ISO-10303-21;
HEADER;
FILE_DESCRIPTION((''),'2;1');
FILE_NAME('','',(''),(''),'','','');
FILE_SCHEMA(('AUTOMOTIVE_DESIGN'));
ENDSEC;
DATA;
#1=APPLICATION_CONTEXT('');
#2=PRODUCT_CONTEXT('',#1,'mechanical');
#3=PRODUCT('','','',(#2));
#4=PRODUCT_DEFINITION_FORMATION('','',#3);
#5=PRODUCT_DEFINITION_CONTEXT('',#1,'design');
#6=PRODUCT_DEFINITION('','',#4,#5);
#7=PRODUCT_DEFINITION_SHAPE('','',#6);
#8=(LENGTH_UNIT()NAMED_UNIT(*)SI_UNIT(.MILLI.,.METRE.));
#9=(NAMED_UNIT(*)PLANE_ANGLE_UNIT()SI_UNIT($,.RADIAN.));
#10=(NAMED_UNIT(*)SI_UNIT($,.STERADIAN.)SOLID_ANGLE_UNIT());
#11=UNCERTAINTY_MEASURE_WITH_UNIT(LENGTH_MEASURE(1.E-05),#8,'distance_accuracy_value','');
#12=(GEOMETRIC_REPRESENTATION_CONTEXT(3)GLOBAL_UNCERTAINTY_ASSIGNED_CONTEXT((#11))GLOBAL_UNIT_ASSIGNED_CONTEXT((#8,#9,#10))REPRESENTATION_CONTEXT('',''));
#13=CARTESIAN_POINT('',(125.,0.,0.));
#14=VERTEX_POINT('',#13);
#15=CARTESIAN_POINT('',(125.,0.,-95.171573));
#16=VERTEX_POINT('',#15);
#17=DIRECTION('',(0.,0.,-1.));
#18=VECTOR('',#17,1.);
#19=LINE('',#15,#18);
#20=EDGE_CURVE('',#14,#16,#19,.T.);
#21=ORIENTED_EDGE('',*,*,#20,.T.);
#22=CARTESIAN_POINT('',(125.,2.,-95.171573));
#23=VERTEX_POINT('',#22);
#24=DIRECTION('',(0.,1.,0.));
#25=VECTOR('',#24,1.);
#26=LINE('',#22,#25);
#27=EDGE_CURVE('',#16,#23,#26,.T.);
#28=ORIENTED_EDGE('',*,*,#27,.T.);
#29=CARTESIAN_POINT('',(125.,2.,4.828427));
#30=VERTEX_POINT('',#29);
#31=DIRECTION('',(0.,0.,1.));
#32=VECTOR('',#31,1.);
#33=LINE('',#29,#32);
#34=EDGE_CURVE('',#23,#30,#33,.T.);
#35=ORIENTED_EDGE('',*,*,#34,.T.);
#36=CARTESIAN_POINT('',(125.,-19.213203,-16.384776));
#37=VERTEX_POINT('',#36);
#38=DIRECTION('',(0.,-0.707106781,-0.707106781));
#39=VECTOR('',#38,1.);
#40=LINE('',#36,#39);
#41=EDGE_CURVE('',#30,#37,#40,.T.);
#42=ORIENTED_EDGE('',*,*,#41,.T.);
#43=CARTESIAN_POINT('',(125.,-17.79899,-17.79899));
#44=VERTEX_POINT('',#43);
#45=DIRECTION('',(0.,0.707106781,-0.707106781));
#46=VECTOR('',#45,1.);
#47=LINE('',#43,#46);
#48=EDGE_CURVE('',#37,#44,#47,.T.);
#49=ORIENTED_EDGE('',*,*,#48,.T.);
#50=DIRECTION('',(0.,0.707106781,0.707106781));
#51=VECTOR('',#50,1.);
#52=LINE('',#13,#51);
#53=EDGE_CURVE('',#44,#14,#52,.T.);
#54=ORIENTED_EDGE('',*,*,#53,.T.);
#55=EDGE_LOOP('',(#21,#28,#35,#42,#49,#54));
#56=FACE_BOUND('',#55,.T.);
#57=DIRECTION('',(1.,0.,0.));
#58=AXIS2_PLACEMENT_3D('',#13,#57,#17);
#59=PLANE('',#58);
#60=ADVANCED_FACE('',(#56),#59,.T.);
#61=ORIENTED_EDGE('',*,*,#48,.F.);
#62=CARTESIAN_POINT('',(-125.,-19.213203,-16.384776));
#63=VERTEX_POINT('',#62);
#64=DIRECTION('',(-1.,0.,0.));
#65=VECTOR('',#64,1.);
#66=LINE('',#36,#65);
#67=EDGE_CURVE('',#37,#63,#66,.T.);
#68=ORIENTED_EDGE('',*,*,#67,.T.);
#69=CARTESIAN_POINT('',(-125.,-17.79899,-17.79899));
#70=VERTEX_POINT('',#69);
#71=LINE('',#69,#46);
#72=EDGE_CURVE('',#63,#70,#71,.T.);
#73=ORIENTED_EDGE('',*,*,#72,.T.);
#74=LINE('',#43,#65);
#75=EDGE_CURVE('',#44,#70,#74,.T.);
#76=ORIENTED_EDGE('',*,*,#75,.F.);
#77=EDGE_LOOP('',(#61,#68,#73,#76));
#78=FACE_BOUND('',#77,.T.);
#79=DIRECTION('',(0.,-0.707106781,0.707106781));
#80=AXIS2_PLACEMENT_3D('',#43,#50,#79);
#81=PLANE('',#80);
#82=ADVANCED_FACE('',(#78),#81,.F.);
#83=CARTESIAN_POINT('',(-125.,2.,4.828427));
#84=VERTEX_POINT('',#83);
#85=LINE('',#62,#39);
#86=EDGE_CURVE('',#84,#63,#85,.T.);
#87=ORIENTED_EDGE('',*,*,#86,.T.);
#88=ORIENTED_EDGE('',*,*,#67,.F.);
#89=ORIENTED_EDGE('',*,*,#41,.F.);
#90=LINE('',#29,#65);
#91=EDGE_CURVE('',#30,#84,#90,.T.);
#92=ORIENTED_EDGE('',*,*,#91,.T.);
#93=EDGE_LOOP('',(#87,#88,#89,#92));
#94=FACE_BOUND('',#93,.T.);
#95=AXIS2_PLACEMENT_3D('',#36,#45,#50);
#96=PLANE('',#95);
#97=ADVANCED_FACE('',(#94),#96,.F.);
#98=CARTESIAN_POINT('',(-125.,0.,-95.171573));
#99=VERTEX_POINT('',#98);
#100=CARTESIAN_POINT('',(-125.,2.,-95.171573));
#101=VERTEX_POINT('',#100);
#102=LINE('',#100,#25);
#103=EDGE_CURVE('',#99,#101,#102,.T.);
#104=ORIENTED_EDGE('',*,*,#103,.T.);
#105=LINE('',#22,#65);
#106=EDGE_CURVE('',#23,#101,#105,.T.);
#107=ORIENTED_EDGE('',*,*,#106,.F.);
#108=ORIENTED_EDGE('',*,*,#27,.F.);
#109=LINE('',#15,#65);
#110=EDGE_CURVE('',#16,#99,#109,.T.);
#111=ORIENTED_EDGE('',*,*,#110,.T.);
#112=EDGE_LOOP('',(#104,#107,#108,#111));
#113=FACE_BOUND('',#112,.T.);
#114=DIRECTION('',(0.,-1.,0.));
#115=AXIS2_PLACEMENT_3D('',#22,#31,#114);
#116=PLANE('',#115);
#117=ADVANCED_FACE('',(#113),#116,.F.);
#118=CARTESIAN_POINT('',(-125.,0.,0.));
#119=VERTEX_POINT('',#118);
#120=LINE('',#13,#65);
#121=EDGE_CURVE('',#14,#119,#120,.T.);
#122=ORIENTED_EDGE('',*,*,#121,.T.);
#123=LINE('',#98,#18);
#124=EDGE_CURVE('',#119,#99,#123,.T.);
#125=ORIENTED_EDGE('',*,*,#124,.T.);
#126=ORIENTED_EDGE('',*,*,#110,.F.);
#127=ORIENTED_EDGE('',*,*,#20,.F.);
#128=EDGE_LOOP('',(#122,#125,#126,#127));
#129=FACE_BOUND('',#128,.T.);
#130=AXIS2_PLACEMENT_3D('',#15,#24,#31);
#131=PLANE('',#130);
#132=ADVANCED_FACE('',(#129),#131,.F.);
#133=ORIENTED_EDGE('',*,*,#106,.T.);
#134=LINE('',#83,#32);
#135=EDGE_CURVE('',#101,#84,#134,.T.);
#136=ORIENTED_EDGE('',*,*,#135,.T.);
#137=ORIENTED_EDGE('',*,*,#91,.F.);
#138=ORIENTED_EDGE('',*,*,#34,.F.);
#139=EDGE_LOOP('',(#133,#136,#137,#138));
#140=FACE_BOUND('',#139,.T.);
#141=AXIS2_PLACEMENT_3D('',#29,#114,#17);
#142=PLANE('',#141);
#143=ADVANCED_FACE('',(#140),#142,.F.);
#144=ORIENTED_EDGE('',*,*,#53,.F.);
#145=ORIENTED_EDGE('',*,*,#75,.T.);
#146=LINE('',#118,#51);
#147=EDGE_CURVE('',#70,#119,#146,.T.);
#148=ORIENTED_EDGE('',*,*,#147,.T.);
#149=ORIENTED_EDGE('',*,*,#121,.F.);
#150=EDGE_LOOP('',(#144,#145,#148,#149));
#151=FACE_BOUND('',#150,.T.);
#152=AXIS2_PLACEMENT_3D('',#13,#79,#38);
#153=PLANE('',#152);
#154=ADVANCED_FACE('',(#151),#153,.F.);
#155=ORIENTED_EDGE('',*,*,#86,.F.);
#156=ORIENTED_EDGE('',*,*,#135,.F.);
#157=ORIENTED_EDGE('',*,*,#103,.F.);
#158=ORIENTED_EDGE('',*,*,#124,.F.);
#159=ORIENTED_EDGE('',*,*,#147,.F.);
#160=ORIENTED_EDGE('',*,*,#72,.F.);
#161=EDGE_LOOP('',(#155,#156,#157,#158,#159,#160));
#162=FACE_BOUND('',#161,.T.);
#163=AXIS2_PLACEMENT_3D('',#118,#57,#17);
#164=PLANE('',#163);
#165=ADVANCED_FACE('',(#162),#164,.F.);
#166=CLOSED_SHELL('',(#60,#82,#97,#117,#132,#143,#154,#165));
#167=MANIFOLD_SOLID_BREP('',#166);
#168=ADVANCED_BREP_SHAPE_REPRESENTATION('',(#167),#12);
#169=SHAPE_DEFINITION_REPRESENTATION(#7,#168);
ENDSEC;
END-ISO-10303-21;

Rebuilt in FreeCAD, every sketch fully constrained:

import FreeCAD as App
import Part
import Sketcher

V = App.Vector
Q = App.Units.Quantity


def add_polygon(sketch, points):
    """Adds a closed chain of lines whose ends are joined by coincident constraints."""
    first, n = sketch.GeometryCount, len(points)
    for a, b in zip(points, points[1:] + points[:1]):
        sketch.addGeometry(Part.LineSegment(App.Vector(*a, 0), App.Vector(*b, 0)), False)
    for i in range(n):
        sketch.addConstraint(Sketcher.Constraint("Coincident", first + i, 2, first + (i + 1) % n, 1))

doc = App.newDocument("Part")
params = doc.addObject("Spreadsheet::Sheet", "Params")
for row, (alias, value) in enumerate([
    ("sketch1_width", "2 mm"),
    ("sketch1_height", "100 mm"),
    ("sketch1_length", "30 mm"),
    ("sketch1_length2", "2 mm"),
    ("pad1_length", "250 mm"),
], start=1):
    params.set(f"A{row}", alias)
    params.set(f"B{row}", "=" + value)
    params.setAlias(f"B{row}", alias)

body = doc.addObject("PartDesign::Body", "Body")

sketch1 = body.newObject("Sketcher::SketchObject", "Sketch")
sketch1.AttachmentSupport = (doc.getObject("YZ_Plane"), [""])
sketch1.MapMode = "FlatFace"
add_polygon(sketch1, [(-17.8, -17.8), (0, 0), (0, -95.2), (2, -95.2), (2, 4.8), (-19.2, -16.4)])
sketch1.addConstraint([
    Sketcher.Constraint("Vertical", 1),
    Sketcher.Constraint("Horizontal", 2),
    Sketcher.Constraint("Vertical", 3),
    Sketcher.Constraint("Coincident", 0, 2, -1, 1),
    Sketcher.Constraint("Parallel", 0, 4),
    Sketcher.Constraint("Perpendicular", 4, 5),
    Sketcher.Constraint("DistanceX", 2, 1, 2, 2, Q("2 mm")),
    Sketcher.Constraint("DistanceY", 3, 1, 3, 2, Q("100 mm")),
    Sketcher.Constraint("Angle", 0, Q("45 deg")),
    Sketcher.Constraint("Distance", 4, Q("30 mm")),
    Sketcher.Constraint("Distance", 5, Q("2 mm")),
])
sketch1.setExpression("Constraints[12]", "Params.sketch1_width")
sketch1.setExpression("Constraints[13]", "Params.sketch1_height")
sketch1.setExpression("Constraints[15]", "Params.sketch1_length")
sketch1.setExpression("Constraints[16]", "Params.sketch1_length2")
pad1 = body.newObject("PartDesign::Pad", "Pad")
pad1.Profile = sketch1
pad1.setExpression("Length", "Params.pad1_length")
pad1.Midplane = True

doc.recompute()
